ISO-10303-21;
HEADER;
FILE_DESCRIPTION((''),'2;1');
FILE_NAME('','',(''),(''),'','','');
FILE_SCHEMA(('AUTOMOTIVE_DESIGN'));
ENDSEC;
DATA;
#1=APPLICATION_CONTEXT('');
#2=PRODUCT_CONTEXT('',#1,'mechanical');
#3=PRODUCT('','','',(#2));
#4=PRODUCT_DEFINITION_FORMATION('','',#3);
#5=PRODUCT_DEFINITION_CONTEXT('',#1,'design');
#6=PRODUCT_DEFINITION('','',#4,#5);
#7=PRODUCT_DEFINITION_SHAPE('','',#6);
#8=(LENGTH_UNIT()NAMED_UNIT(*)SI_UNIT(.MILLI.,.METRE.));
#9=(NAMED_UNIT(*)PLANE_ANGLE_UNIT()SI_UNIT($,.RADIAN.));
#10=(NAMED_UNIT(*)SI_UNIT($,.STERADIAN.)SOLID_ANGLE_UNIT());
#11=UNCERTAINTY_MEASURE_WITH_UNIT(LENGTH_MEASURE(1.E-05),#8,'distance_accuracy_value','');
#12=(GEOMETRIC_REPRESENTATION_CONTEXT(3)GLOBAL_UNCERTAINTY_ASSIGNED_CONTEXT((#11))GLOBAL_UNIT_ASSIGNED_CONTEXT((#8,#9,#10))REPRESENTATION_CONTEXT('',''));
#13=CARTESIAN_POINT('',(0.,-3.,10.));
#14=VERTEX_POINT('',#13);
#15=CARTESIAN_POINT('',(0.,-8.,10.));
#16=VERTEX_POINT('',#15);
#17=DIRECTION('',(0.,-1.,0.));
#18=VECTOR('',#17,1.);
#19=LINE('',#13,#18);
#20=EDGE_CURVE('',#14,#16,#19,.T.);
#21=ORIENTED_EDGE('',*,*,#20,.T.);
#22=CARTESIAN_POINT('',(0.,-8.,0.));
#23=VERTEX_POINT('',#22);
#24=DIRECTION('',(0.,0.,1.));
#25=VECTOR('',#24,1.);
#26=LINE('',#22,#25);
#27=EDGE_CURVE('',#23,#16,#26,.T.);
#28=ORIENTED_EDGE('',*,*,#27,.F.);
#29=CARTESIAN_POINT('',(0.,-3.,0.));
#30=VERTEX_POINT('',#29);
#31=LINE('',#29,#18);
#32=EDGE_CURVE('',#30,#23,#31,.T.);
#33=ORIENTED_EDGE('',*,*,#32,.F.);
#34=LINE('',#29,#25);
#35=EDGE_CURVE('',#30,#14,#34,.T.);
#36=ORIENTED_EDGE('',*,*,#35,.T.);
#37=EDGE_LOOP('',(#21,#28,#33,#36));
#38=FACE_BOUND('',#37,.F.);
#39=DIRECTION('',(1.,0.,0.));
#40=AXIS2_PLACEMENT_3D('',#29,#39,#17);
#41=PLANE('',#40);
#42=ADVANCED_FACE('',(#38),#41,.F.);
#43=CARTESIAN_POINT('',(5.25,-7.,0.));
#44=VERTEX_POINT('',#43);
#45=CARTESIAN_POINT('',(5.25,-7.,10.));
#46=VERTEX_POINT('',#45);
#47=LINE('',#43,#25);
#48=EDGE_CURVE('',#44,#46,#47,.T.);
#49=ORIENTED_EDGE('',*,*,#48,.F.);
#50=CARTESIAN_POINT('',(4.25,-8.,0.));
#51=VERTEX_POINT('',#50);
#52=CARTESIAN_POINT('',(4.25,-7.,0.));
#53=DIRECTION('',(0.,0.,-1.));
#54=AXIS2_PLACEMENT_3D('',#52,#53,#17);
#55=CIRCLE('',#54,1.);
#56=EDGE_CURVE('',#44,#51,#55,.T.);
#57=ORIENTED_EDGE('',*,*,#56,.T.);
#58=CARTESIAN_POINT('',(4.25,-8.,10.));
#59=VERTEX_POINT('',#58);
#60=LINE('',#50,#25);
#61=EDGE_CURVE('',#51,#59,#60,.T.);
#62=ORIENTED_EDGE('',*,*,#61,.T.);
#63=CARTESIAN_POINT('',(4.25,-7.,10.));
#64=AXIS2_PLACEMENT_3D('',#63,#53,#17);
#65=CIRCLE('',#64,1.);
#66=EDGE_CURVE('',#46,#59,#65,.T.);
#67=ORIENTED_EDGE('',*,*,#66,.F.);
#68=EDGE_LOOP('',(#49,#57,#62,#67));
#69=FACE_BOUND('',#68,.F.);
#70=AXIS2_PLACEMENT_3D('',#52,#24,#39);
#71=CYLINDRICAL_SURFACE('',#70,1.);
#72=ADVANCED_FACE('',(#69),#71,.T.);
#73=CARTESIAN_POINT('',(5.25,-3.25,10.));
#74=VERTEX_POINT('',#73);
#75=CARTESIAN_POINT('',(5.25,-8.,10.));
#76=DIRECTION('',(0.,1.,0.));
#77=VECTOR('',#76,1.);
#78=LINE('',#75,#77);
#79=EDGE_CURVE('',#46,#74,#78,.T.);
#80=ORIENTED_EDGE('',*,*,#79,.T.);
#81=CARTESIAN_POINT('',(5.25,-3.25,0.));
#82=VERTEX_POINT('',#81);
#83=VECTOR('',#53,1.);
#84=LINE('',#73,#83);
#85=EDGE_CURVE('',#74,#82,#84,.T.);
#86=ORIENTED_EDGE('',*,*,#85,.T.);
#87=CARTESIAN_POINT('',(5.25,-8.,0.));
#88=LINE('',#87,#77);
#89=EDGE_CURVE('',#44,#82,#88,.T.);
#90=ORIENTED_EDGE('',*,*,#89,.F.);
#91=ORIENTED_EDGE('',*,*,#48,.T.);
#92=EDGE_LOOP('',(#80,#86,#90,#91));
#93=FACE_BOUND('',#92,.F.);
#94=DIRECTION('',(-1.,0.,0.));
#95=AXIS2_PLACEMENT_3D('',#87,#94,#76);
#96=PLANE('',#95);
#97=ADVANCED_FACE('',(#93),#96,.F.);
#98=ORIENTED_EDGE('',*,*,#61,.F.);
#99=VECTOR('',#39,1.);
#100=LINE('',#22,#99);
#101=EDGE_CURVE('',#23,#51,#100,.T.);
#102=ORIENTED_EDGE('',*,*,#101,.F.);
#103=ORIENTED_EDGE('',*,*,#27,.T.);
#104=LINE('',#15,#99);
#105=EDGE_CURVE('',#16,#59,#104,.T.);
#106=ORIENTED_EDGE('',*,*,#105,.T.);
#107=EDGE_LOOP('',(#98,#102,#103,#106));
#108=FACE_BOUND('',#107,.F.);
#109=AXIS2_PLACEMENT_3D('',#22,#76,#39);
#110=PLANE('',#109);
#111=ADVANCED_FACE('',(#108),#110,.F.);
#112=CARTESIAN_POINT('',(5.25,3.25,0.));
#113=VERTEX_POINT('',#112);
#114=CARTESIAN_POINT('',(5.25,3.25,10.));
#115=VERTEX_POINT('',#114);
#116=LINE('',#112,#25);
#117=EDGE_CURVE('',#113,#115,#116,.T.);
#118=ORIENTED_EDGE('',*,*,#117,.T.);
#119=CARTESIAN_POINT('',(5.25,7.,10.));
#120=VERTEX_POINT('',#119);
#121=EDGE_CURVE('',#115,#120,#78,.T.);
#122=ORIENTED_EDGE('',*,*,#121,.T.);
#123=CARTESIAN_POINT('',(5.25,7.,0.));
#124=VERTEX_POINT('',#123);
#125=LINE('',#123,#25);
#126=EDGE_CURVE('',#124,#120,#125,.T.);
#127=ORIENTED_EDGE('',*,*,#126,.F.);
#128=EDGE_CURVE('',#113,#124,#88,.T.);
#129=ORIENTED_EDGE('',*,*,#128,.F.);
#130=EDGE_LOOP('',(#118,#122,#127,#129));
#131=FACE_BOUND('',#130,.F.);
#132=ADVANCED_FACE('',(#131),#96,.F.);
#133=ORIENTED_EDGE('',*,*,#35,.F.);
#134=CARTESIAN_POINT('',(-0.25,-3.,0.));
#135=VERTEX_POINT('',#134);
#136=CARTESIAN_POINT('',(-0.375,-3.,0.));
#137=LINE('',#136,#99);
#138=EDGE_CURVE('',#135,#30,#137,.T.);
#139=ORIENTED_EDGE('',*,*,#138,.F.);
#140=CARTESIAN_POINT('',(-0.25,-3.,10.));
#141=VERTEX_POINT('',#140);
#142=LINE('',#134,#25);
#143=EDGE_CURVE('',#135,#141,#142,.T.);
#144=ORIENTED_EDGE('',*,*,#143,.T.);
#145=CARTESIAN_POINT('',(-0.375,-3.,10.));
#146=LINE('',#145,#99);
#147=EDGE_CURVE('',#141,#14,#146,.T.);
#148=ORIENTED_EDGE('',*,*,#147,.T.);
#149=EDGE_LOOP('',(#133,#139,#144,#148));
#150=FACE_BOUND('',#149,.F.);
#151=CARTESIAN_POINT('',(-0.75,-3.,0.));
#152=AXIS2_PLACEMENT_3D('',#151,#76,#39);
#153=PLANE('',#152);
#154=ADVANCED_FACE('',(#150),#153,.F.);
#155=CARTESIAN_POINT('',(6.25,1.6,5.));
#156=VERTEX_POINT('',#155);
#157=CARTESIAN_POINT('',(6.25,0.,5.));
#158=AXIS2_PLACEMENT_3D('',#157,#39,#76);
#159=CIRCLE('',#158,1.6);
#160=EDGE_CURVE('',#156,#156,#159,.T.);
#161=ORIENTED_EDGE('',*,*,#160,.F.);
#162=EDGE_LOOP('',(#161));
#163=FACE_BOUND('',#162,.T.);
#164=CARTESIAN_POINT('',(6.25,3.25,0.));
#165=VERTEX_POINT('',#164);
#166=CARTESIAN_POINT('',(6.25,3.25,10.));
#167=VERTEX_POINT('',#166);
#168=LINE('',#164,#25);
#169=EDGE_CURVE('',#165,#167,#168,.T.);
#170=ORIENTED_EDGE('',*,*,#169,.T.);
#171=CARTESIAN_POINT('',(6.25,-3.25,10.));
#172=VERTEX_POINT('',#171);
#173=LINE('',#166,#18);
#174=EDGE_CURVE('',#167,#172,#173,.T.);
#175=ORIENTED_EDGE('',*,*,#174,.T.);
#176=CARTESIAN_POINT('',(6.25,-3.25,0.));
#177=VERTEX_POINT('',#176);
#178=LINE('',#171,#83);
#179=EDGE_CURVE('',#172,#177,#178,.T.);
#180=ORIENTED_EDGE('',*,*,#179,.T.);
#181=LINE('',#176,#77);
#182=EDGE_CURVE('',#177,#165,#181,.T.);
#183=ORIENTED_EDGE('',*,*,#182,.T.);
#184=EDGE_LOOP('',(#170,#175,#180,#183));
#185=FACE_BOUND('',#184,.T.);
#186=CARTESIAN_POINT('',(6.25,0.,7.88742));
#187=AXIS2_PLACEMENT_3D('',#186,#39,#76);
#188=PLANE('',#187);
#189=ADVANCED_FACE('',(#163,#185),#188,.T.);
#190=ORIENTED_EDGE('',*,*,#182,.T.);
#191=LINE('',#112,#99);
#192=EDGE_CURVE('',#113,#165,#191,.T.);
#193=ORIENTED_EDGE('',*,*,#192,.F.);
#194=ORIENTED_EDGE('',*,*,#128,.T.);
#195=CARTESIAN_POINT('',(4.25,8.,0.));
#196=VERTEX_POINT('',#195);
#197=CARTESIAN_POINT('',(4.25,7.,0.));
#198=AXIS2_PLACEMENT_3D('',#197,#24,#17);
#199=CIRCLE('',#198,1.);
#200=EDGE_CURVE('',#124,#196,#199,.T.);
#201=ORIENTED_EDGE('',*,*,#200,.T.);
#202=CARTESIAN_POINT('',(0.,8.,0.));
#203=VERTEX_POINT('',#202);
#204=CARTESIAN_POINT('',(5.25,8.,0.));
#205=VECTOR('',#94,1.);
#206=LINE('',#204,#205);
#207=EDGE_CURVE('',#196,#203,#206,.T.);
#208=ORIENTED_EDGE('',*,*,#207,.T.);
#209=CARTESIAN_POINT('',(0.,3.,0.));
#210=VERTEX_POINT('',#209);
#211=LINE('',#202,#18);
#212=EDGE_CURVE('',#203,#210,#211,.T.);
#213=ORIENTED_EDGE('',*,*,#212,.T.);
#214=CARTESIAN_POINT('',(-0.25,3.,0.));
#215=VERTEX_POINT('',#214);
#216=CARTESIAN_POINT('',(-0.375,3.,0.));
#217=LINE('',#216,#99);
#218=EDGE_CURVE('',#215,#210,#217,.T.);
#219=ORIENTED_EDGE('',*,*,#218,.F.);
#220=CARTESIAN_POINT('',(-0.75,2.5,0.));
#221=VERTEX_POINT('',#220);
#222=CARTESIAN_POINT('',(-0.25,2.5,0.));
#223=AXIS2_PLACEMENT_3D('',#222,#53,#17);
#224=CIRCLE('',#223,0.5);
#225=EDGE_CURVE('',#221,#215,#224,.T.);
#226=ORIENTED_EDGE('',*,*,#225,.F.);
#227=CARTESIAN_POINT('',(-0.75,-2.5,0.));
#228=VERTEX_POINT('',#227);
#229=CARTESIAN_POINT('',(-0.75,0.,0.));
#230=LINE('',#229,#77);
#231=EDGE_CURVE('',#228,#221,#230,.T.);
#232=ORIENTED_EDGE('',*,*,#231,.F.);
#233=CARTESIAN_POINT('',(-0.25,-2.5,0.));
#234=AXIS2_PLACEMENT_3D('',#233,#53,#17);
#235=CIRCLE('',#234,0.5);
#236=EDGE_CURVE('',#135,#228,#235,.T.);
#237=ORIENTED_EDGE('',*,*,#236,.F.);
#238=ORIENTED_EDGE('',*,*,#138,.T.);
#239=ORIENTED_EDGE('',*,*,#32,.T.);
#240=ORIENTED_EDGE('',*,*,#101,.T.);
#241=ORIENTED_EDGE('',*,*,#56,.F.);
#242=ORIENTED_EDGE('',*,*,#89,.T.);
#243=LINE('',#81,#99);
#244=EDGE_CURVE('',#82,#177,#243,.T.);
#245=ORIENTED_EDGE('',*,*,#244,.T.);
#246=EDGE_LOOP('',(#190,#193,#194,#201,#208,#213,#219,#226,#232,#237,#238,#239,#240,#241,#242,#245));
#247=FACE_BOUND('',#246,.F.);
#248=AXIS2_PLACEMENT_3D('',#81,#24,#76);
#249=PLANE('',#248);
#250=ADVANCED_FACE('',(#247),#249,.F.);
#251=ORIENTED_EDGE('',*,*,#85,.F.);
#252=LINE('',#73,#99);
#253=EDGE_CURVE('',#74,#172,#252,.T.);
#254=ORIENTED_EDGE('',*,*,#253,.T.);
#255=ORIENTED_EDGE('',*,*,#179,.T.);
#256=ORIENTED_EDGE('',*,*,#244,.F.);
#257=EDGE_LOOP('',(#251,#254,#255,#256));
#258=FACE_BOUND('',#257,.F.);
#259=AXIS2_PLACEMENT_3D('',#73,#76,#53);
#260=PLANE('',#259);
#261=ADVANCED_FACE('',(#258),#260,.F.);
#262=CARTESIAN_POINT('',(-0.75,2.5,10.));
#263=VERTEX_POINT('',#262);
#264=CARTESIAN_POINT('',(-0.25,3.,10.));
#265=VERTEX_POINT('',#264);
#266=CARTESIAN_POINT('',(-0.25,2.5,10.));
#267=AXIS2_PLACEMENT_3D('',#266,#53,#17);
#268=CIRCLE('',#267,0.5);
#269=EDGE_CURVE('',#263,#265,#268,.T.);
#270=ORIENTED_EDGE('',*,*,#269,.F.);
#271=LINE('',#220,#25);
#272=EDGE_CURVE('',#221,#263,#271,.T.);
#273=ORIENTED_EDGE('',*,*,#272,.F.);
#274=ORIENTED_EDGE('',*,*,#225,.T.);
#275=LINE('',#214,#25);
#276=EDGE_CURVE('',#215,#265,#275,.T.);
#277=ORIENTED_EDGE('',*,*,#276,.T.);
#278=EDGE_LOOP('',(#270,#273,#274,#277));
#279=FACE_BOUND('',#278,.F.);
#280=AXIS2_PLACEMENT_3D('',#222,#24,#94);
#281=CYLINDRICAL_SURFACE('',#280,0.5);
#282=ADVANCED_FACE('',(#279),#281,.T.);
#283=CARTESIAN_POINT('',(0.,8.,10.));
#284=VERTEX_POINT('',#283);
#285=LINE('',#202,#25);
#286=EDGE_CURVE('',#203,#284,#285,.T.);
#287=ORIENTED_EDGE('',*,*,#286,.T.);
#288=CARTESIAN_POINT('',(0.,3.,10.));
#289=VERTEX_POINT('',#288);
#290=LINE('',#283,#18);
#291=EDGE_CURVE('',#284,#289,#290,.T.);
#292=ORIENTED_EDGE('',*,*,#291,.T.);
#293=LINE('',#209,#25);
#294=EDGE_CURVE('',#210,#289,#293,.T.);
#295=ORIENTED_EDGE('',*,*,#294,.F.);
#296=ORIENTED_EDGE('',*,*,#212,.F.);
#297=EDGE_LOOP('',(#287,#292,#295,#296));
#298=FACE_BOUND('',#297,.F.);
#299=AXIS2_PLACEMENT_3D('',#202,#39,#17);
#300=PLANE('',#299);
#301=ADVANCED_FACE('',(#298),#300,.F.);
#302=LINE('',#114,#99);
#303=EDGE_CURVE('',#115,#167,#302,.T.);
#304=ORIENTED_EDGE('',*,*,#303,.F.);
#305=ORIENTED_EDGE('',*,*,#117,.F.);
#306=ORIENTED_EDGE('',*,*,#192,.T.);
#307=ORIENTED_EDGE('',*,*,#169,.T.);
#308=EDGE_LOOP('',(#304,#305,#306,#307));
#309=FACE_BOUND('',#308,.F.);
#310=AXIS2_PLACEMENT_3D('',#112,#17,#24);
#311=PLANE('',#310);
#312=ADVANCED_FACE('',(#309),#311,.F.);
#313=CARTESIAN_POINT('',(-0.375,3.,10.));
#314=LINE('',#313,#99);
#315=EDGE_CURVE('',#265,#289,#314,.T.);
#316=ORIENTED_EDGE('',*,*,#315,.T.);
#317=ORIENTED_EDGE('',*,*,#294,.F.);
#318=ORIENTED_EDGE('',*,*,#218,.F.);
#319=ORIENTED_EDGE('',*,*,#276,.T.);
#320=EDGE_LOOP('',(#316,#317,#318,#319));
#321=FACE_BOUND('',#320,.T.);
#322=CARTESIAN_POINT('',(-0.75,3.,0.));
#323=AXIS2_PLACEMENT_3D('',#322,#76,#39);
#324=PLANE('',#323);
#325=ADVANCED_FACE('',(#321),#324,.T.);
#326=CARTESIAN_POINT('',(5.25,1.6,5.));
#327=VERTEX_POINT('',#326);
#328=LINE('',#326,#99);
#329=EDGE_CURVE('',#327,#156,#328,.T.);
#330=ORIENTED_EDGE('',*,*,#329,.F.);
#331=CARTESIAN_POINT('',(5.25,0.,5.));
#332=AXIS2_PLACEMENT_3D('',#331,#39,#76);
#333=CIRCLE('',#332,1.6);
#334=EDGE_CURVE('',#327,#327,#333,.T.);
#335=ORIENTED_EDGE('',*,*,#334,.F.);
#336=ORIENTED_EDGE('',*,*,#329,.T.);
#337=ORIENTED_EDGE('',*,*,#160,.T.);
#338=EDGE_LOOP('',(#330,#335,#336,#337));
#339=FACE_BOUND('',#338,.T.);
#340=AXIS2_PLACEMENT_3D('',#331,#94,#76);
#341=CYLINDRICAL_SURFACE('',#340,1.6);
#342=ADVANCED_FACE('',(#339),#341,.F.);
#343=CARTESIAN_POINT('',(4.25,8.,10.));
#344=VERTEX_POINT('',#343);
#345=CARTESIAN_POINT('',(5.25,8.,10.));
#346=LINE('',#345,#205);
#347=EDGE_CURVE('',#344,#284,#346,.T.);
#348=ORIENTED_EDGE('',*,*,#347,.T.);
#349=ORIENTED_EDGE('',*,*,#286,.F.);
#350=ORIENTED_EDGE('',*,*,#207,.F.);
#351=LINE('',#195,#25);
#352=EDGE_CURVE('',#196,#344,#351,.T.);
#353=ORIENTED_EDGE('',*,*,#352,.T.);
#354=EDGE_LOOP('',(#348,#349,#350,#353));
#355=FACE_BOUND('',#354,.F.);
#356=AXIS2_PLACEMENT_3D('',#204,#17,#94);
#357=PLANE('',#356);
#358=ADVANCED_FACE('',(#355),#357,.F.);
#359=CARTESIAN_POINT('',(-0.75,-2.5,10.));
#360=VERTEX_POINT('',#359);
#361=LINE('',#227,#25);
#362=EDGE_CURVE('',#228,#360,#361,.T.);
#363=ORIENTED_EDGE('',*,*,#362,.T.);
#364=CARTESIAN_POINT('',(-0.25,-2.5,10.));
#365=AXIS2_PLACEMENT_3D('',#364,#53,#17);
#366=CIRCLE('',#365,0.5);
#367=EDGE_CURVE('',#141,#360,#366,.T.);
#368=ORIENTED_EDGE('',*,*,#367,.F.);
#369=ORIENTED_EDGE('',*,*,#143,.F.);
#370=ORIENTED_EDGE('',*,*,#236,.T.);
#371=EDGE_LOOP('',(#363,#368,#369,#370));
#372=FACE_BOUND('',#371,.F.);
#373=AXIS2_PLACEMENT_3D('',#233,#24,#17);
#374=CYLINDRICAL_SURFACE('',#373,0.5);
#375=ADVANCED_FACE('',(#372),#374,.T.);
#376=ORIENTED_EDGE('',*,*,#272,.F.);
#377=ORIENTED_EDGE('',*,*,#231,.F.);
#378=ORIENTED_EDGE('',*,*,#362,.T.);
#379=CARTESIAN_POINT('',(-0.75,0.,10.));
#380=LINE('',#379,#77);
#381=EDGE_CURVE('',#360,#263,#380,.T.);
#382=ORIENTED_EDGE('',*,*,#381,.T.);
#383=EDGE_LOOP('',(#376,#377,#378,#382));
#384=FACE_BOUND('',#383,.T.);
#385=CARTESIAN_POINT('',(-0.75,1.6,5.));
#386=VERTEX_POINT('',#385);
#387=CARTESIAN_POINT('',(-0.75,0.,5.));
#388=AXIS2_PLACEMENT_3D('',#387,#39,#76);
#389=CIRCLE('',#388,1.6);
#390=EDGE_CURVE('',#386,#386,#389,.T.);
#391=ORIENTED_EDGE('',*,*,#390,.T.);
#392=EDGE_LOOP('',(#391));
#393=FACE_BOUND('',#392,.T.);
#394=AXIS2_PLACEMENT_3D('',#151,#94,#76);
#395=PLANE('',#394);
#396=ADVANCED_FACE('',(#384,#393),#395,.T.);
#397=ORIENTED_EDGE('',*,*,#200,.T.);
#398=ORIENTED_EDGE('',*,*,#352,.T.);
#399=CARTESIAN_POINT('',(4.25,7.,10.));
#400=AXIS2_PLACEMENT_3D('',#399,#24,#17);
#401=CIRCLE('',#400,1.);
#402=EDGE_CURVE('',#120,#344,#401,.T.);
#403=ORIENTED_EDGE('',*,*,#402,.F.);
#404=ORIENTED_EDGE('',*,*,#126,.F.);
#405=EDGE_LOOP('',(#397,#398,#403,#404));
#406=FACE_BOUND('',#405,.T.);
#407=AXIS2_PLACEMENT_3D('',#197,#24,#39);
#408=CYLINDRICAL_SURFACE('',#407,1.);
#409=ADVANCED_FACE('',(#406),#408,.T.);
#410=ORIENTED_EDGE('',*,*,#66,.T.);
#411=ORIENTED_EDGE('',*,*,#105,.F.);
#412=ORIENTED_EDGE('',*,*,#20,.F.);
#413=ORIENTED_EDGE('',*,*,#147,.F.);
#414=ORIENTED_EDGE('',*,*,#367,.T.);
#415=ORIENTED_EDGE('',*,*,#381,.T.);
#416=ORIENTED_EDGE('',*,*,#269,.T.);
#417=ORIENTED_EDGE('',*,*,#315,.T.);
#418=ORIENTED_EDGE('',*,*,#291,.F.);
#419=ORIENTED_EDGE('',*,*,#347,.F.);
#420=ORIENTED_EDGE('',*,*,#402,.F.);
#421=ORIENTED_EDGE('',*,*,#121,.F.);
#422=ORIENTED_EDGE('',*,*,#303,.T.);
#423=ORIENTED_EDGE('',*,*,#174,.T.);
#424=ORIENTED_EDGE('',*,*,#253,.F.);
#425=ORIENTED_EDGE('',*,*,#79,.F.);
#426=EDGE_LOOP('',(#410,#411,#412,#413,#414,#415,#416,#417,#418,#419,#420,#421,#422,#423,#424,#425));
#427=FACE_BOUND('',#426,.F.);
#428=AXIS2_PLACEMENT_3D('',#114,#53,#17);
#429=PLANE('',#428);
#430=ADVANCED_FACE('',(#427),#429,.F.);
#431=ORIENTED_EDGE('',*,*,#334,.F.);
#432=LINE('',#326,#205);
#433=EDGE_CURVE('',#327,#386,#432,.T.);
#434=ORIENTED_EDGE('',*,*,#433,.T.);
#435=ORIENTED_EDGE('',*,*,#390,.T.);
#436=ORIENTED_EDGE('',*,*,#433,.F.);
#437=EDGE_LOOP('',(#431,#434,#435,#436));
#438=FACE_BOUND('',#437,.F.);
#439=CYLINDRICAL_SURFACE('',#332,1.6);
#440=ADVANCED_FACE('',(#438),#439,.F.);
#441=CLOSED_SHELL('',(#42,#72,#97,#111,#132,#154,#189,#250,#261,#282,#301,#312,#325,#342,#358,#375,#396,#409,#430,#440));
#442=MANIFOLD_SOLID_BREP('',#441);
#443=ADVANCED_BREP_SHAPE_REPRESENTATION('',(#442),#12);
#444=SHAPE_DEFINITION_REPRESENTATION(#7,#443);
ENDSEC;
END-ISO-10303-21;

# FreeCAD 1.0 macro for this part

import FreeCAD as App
import Part
import Sketcher

V = App.Vector


def edges_at(feature, points):
    """Names of the edges that pass closest to the given points."""
    edges = feature.Shape.Edges
    near = lambda p: min(range(len(edges)), key=lambda i: edges[i].distToShape(Part.Vertex(*p))[0])
    return sorted({f"Edge{near(p) + 1}" for p in points})

doc = App.newDocument("Part")
body = doc.addObject("PartDesign::Body", "Body")

# Sketch on XY plane
sketch1 = body.newObject("Sketcher::SketchObject", "Sketch")
sketch1.AttachmentSupport = (doc.getObject("XY_Plane"), [""])
sketch1.MapMode = "FlatFace"
sketch1.addGeometry([
    Part.LineSegment(V(-0.8, 3, 0), V(-0.8, -3, 0)),  # 0
    Part.LineSegment(V(-0.8, -3, 0), V(0, -3, 0)),  # 1
    Part.LineSegment(V(0, -3, 0), V(0, -8, 0)),  # 2
    Part.LineSegment(V(0, -8, 0), V(5.2, -8, 0)),  # 3
    Part.LineSegment(V(5.2, -8, 0), V(5.2, 8, 0)),  # 4
    Part.LineSegment(V(5.2, 8, 0), V(0, 8, 0)),  # 5
    Part.LineSegment(V(0, 8, 0), V(0, 3, 0)),  # 6
    Part.LineSegment(V(0, 3, 0), V(-0.8, 3, 0)),  # 7
], False)
sketch1.addConstraint([
    Sketcher.Constraint("Coincident", 0, 2, 1, 1),
    Sketcher.Constraint("Coincident", 1, 2, 2, 1),
    Sketcher.Constraint("Coincident", 2, 2, 3, 1),
    Sketcher.Constraint("Coincident", 3, 2, 4, 1),
    Sketcher.Constraint("Coincident", 4, 2, 5, 1),
    Sketcher.Constraint("Coincident", 5, 2, 6, 1),
    Sketcher.Constraint("Coincident", 6, 2, 7, 1),
    Sketcher.Constraint("Coincident", 7, 2, 0, 1),
    Sketcher.Constraint("Vertical", 0),
    Sketcher.Constraint("Horizontal", 1),
    Sketcher.Constraint("Vertical", 2),
    Sketcher.Constraint("Horizontal", 3),
    Sketcher.Constraint("Vertical", 4),
    Sketcher.Constraint("Horizontal", 5),
    Sketcher.Constraint("Vertical", 6),
    Sketcher.Constraint("Horizontal", 7),
    Sketcher.Constraint("Symmetric", 2, 2, 5, 2, -1, 1),
    Sketcher.Constraint("Symmetric", 1, 2, 6, 2, -1),
    Sketcher.Constraint("DistanceY", 0, 2, 0, 1, 6.0),
    Sketcher.Constraint("DistanceY", 2, 2, 2, 1, 5.0),
    Sketcher.Constraint("DistanceX", 0, 2, 3, 2, 6.0),
    Sketcher.Constraint("DistanceX", 1, 1, 1, 2, 0.75),
])
pad1 = body.newObject("PartDesign::Pad", "Pad")
pad1.Profile = sketch1
pad1.Length = 10

# Sketch on YZ plane
sketch2 = body.newObject("Sketcher::SketchObject", "Sketch001")
sketch2.AttachmentSupport = (doc.getObject("YZ_Plane"), [""])
sketch2.MapMode = "FlatFace"
sketch2.AttachmentOffset = App.Placement(V(0, 0, 5.25), App.Rotation())
sketch2.addGeometry(Part.Circle(V(0, 5, 0), V(0, 0, 1), 1.6), False)
sketch2.addConstraint([
    Sketcher.Constraint("PointOnObject", 0, 3, -2),
    Sketcher.Constraint("Diameter", 0, 3.2),
    Sketcher.Constraint("DistanceY", -1, 1, 0, 3, 5.0),
])
pocket1 = body.newObject("PartDesign::Pocket", "Pocket")
pocket1.Profile = sketch2
pocket1.Length = 25

# Sketch on YZ plane
sketch3 = body.newObject("Sketcher::SketchObject", "Sketch002")
sketch3.AttachmentSupport = (doc.getObject("YZ_Plane"), [""])
sketch3.MapMode = "FlatFace"
sketch3.AttachmentOffset = App.Placement(V(0, 0, 5.25), App.Rotation())
sketch3.addGeometry([
    Part.LineSegment(V(3.2, 10, 0), V(-3.2, 10, 0)),  # 0
    Part.LineSegment(V(-3.2, 10, 0), V(-3.2, 0, 0)),  # 1
    Part.LineSegment(V(-3.2, 0, 0), V(3.2, 0, 0)),  # 2
    Part.LineSegment(V(3.2, 0, 0), V(3.2, 10, 0)),  # 3
    Part.Circle(V(0, 5, 0), V(0, 0, 1), 1.6),  # 4
], False)
sketch3.addConstraint([
    Sketcher.Constraint("Coincident", 0, 2, 1, 1),
    Sketcher.Constraint("Coincident", 1, 2, 2, 1),
    Sketcher.Constraint("Coincident", 2, 2, 3, 1),
    Sketcher.Constraint("Coincident", 3, 2, 0, 1),
    Sketcher.Constraint("Horizontal", 0),
    Sketcher.Constraint("Vertical", 1),
    Sketcher.Constraint("Horizontal", 2),
    Sketcher.Constraint("Vertical", 3),
    Sketcher.Constraint("Symmetric", 1, 2, 2, 2, -1, 1),
    Sketcher.Constraint("PointOnObject", 4, 3, -2),
    Sketcher.Constraint("Diameter", 4, 3.2),
    Sketcher.Constraint("DistanceY", 1, 2, 1, 1, 10.0),
    Sketcher.Constraint("DistanceX", 0, 2, 0, 1, 6.5),
    Sketcher.Constraint("DistanceY", -1, 1, 4, 3, 5.0),
])
pad2 = body.newObject("PartDesign::Pad", "Pad001")
pad2.Profile = sketch3
pad2.Length = 1
doc.recompute()

fillet = body.newObject("PartDesign::Fillet", "Fillet")
fillet.Base = (pad2, edges_at(pad2, [(5.25, -8, 5), (5.25, 8, 5)]))
fillet.Radius = 1
doc.recompute()

fillet2 = body.newObject("PartDesign::Fillet", "Fillet001")
fillet2.Base = (fillet, edges_at(fillet, [(-0.75, -3, 5), (-0.75, 3, 5)]))
fillet2.Radius = 0.5

doc.recompute()
